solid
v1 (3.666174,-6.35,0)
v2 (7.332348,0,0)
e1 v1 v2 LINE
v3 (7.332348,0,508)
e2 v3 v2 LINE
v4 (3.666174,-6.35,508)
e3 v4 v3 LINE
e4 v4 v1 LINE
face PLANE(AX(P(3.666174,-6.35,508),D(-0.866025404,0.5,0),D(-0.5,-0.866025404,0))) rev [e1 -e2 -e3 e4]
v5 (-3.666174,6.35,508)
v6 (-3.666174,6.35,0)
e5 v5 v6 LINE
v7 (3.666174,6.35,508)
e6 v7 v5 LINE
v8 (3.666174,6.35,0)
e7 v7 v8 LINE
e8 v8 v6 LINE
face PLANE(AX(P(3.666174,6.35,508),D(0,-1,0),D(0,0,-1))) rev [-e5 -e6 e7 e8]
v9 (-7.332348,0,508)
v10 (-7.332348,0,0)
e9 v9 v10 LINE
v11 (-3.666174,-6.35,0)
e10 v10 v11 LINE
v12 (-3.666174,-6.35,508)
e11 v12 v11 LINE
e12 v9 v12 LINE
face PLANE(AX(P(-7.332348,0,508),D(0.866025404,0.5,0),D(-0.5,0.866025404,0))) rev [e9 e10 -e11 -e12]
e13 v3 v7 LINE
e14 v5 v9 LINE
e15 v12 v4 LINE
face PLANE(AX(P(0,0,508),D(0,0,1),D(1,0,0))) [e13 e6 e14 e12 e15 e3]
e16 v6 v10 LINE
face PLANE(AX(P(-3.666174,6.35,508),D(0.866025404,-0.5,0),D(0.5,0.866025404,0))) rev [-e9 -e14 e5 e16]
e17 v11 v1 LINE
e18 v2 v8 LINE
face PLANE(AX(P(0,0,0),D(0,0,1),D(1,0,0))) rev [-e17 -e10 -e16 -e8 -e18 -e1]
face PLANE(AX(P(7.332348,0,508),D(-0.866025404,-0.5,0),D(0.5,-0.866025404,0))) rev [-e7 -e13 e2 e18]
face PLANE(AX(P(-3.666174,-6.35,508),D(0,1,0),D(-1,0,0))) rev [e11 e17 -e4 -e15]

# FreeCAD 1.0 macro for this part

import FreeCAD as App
import Part
import Sketcher

V = App.Vector
Q = App.Units.Quantity


def add_polygon(sketch, points):
    """Adds a closed chain of lines whose ends are joined by coincident constraints."""
    first, n = sketch.GeometryCount, len(points)
    for a, b in zip(points, points[1:] + points[:1]):
        sketch.addGeometry(Part.LineSegment(App.Vector(*a, 0), App.Vector(*b, 0)), False)
    for i in range(n):
        sketch.addConstraint(Sketcher.Constraint("Coincident", first + i, 2, first + (i + 1) % n, 1))

doc = App.newDocument("Part")
params = doc.addObject("Spreadsheet::Sheet", "Params")
for row, (alias, value) in enumerate([
    ("pad1_length", "20 in"),
], start=1):
    params.set(f"A{row}", alias)
    params.set(f"B{row}", "=" + value)
    params.setAlias(f"B{row}", alias)

body = doc.addObject("PartDesign::Body", "Body")

# Sketch on XY plane
sketch1 = body.newObject("Sketcher::SketchObject", "Sketch")
sketch1.AttachmentSupport = (doc.getObject("XY_Plane"), [""])
sketch1.MapMode = "FlatFace"
add_polygon(sketch1, [(-4, 6), (-7, 0), (-4, -6), (4, -6), (7, 0), (4, 6)])  # lines 0-5
sketch1.addConstraint(Sketcher.Constraint("Horizontal", 2))
sketch1.addConstraint(Sketcher.Constraint("Horizontal", 5))
sketch1.addConstraint(Sketcher.Constraint("Symmetric", 0, 2, 3, 2, -1, 1))
sketch1.addConstraint(Sketcher.Constraint("Symmetric", 1, 2, 4, 2, -1, 1))
sketch1.addConstraint(Sketcher.Constraint("PointOnObject", 0, 2, -1))
sketch1.addConstraint(Sketcher.Constraint("Parallel", 0, 3))
sketch1.addConstraint(Sketcher.Constraint("Vertical", 2, 2, 4, 2))
sketch1.addConstraint(Sketcher.Constraint("Angle", 0, Q("-120 deg")))
sketch1.addConstraint(Sketcher.Constraint("DistanceY", 2, 2, 4, 2, Q("0.5 in")))
sketch1.addConstraint(Sketcher.Constraint("DistanceX", 2, 1, 2, 2, 7.332348))
pad1 = body.newObject("PartDesign::Pad", "Pad")
pad1.Profile = sketch1
pad1.setExpression("Length", "Params.pad1_length")

doc.recompute()
